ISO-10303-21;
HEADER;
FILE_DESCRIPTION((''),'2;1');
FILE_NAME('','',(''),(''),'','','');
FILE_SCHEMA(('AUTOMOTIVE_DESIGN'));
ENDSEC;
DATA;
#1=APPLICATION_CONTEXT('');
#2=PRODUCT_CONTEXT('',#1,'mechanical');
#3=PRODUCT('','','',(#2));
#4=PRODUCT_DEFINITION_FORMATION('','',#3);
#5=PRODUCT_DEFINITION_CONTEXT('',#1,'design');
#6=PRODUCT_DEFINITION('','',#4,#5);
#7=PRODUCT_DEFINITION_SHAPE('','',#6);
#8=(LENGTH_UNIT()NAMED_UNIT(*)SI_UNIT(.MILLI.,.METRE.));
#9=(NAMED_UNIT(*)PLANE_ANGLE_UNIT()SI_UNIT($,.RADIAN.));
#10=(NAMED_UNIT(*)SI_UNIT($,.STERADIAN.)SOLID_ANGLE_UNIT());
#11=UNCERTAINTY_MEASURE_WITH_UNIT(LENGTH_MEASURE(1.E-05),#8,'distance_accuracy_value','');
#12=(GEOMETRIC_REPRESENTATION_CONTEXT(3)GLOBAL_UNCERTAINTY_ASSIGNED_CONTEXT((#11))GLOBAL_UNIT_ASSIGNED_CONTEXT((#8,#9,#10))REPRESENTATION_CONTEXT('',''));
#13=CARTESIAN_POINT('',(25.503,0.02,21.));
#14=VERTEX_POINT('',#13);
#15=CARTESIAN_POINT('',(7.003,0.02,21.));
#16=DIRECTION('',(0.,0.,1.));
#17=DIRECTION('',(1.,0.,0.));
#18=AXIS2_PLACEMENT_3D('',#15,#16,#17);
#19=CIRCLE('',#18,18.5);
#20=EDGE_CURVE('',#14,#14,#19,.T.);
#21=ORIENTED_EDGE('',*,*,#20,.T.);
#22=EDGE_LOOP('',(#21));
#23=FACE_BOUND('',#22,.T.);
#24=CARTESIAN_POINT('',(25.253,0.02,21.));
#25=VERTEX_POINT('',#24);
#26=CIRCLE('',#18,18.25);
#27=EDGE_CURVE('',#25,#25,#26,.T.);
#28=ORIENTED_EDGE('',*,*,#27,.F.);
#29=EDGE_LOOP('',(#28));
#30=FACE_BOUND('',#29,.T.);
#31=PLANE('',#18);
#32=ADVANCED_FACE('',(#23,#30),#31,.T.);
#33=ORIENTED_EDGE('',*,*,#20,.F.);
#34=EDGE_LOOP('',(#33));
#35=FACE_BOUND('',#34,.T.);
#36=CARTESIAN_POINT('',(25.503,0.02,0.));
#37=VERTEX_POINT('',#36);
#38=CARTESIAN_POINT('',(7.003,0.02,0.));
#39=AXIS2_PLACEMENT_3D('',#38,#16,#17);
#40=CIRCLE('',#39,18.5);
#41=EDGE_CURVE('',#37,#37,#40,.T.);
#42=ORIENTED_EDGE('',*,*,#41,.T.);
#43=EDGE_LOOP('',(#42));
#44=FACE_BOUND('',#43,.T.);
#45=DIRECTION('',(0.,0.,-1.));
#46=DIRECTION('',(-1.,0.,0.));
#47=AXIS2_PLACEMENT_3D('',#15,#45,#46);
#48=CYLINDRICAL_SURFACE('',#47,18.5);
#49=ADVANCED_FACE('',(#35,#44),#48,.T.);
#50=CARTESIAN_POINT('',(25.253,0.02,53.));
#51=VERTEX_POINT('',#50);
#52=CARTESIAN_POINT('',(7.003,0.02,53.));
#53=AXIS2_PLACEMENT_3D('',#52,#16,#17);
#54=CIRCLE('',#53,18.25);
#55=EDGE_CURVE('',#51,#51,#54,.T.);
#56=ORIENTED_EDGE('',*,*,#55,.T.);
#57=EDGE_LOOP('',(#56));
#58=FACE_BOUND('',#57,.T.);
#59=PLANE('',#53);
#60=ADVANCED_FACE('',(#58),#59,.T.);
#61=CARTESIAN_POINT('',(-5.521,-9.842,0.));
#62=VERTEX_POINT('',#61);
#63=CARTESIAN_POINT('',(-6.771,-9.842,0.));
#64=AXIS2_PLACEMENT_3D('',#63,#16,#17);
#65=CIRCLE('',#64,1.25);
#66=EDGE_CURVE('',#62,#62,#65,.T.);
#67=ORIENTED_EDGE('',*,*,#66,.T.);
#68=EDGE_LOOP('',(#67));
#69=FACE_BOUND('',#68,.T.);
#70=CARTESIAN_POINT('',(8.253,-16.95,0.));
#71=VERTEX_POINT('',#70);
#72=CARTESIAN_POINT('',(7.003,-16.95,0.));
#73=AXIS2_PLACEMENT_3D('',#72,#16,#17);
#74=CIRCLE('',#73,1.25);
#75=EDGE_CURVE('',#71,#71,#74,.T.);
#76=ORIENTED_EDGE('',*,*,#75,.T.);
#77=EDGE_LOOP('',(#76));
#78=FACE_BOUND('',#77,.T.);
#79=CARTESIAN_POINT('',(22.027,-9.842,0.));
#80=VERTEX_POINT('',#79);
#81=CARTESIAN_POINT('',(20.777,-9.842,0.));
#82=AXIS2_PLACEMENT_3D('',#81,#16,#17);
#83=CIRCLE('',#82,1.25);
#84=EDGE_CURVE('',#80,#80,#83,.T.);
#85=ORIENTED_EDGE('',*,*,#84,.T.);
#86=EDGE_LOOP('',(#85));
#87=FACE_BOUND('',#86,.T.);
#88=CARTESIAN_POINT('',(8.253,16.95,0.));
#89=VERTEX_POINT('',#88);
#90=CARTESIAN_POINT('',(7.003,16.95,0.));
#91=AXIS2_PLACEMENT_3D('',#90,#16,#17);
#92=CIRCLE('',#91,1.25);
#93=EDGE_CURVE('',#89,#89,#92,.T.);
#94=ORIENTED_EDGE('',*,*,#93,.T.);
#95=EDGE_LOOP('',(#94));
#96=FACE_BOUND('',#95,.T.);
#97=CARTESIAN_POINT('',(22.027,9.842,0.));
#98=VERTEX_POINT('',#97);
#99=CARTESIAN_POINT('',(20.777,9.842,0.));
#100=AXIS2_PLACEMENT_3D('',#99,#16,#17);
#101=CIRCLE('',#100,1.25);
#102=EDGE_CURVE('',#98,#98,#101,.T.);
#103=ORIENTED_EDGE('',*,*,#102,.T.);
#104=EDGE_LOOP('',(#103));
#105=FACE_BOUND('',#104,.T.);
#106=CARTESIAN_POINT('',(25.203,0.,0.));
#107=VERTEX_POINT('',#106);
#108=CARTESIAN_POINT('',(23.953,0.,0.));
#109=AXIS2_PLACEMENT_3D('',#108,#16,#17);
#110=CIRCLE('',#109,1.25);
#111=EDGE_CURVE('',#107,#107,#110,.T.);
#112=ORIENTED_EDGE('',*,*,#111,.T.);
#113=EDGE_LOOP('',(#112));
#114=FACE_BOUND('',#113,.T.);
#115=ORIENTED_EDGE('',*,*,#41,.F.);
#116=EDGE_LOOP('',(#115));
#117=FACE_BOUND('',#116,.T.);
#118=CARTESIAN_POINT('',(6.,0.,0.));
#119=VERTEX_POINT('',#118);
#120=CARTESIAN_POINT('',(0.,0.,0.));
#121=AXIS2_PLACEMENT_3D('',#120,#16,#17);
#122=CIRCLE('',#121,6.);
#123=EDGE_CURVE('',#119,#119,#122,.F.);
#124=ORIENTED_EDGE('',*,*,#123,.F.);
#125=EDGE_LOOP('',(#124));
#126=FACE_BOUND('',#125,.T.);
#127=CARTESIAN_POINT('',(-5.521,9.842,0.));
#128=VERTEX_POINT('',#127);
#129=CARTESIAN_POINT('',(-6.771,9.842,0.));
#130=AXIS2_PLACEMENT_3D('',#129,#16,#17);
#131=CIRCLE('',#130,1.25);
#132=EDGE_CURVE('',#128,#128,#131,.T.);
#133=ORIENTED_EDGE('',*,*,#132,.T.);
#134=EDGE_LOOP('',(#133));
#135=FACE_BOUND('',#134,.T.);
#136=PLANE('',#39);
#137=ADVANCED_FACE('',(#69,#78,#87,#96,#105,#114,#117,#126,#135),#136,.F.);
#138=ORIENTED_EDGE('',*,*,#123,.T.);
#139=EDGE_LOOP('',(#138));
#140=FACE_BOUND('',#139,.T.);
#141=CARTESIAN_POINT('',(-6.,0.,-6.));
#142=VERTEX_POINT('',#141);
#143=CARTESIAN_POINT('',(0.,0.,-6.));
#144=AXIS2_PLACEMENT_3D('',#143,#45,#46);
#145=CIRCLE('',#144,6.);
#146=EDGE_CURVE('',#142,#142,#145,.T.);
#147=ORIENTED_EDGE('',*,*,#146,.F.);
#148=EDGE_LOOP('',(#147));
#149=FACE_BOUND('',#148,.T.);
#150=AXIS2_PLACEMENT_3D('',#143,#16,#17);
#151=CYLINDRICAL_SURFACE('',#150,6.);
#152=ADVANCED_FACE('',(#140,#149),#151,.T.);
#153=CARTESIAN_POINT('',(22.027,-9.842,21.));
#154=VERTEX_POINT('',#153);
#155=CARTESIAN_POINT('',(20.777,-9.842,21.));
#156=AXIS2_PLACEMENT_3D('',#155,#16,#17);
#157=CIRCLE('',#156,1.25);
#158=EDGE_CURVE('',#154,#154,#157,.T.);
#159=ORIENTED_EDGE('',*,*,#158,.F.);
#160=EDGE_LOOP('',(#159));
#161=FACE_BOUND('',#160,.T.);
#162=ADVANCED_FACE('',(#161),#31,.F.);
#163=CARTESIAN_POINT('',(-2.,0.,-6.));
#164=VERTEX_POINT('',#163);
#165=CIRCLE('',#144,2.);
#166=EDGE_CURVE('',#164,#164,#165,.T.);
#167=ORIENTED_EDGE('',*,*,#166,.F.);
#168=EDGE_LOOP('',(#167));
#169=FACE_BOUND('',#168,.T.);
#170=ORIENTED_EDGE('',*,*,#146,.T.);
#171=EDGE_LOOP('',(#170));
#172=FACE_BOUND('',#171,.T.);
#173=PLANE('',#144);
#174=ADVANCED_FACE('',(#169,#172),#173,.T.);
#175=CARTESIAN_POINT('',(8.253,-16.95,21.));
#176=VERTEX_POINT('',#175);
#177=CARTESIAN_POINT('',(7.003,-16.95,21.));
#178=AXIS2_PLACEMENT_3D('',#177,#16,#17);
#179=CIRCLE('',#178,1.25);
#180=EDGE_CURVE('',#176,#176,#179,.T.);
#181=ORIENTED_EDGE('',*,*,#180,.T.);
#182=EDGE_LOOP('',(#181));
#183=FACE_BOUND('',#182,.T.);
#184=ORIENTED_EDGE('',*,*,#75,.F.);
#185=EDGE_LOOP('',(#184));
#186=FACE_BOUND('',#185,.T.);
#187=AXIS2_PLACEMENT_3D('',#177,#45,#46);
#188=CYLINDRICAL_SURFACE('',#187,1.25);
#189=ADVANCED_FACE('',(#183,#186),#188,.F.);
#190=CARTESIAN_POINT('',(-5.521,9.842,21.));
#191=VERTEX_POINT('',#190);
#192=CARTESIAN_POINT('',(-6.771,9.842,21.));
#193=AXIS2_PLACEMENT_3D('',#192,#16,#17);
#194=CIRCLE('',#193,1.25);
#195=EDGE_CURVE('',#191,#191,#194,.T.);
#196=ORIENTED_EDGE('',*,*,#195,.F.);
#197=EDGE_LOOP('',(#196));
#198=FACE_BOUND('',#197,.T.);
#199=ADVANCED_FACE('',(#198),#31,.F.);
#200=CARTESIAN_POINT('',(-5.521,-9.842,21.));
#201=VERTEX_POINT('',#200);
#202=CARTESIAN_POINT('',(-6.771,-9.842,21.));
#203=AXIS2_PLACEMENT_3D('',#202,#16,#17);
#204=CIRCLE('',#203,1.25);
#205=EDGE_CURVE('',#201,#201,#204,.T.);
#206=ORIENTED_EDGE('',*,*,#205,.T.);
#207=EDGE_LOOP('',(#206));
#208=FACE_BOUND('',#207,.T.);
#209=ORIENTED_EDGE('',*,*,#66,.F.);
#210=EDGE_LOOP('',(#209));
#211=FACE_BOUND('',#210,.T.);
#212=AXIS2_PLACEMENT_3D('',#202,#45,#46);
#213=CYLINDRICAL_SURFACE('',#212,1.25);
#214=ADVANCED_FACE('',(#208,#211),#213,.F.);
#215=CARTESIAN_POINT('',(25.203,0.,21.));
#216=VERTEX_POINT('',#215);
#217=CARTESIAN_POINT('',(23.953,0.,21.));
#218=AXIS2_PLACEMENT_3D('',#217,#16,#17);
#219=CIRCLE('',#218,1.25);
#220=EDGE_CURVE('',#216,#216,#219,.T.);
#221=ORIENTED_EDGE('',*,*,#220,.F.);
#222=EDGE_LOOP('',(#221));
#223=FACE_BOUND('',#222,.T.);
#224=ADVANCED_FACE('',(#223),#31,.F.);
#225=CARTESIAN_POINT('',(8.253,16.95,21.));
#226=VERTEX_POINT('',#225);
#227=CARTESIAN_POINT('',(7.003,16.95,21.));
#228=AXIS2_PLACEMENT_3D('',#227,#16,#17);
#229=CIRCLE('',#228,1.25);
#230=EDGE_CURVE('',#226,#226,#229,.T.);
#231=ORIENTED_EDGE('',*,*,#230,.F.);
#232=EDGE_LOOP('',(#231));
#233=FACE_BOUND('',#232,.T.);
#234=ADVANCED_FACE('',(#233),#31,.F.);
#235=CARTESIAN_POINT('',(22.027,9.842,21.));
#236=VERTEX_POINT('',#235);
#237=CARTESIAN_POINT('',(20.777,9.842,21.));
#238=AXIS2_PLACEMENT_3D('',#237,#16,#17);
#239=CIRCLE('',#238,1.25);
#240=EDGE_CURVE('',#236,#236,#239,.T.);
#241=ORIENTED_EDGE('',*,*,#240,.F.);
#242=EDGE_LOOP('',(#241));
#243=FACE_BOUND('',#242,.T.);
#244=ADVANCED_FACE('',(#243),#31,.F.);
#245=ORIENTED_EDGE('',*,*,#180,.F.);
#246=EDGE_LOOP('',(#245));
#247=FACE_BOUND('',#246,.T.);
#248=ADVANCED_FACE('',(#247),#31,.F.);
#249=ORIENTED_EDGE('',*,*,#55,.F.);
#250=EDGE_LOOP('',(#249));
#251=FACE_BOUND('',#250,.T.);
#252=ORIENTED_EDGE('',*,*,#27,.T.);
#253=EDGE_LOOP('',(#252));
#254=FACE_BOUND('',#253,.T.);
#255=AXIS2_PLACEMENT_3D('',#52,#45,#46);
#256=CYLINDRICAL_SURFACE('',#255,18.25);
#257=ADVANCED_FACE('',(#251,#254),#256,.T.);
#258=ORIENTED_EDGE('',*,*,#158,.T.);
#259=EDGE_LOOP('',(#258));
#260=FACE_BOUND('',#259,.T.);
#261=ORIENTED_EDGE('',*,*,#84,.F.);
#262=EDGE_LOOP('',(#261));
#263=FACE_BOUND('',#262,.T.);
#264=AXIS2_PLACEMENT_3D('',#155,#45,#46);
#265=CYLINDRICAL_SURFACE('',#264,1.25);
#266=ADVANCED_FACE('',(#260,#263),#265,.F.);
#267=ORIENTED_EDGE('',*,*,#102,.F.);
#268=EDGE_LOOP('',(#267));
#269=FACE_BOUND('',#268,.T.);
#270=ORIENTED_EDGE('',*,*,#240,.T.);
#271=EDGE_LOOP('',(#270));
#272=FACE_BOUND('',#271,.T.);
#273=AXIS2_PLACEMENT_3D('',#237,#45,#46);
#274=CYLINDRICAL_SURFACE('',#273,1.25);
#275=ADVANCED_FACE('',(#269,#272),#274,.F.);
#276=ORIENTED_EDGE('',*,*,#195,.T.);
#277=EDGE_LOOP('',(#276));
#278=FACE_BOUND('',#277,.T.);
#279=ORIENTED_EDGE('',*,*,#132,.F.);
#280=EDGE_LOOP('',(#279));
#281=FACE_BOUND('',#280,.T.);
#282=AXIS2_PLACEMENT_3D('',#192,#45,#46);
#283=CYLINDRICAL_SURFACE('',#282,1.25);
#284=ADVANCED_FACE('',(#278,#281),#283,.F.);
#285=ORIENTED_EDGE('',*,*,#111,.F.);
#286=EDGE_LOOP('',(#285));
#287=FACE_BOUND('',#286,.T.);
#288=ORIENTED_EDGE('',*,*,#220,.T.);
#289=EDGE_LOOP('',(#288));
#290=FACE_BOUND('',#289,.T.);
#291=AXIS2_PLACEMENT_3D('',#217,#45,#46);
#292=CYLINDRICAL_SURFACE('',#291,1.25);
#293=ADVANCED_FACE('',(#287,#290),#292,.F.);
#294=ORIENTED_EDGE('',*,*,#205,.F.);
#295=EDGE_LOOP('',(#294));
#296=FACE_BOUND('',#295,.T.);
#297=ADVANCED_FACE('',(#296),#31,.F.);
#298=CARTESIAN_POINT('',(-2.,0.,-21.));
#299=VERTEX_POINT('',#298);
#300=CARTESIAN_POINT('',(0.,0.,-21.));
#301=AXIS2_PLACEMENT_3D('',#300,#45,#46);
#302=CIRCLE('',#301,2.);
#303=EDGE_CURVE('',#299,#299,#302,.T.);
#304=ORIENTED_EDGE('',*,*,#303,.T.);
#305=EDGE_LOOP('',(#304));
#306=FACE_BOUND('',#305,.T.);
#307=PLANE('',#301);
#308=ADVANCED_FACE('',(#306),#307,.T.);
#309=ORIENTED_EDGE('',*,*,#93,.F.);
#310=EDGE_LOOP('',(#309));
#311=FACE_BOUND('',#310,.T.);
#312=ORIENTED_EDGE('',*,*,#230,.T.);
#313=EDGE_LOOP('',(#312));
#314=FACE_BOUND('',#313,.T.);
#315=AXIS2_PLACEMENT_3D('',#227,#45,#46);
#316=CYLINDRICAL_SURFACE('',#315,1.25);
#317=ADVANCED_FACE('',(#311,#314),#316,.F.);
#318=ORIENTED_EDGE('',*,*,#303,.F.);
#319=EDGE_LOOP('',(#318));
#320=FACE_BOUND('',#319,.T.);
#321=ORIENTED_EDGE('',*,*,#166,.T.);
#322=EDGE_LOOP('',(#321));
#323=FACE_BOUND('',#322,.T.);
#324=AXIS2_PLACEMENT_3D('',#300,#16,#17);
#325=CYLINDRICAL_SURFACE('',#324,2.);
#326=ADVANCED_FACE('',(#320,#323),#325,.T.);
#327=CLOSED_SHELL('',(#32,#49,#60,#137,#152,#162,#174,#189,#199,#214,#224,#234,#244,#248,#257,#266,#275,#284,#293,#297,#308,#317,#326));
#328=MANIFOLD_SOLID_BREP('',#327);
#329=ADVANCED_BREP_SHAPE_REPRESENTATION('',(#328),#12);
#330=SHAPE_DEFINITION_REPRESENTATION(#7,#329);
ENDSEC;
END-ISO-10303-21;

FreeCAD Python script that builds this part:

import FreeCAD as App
import Part
import Sketcher

V = App.Vector

doc = App.newDocument("Part")
body = doc.addObject("PartDesign::Body", "Body")

sketch1 = body.newObject("Sketcher::SketchObject", "Sketch")
sketch1.AttachmentSupport = (doc.getObject("XY_Plane"), [""])
sketch1.MapMode = "FlatFace"
sketch1.addGeometry(Part.Circle(V(7, 0, 0), V(0, 0, 1), 18.5), False)
sketch1.addGeometry(Part.Circle(V(-6.8, -9.8, 0), V(0, 0, 1), 1.2), False)
sketch1.addGeometry(Part.Circle(V(7, -16.9, 0), V(0, 0, 1), 1.2), False)
sketch1.addGeometry(Part.Circle(V(0, 0, 0), V(0, 0, 1), 6), False)
sketch1.addGeometry(Part.Circle(V(20.8, -9.8, 0), V(0, 0, 1), 1.2), False)
sketch1.addGeometry(Part.Circle(V(24, 0, 0), V(0, 0, 1), 1.2), False)
sketch1.addGeometry(Part.Circle(V(-6.8, 9.8, 0), V(0, 0, 1), 1.2), False)
sketch1.addGeometry(Part.Circle(V(7, 16.9, 0), V(0, 0, 1), 1.2), False)
sketch1.addGeometry(Part.Circle(V(20.8, 9.8, 0), V(0, 0, 1), 1.2), False)
sketch1.addConstraint(Sketcher.Constraint("Coincident", 3, 3, -1, 1))
sketch1.addConstraint(Sketcher.Constraint("Equal", 1, 2))
sketch1.addConstraint(Sketcher.Constraint("Equal", 2, 4))
sketch1.addConstraint(Sketcher.Constraint("Equal", 4, 5))
sketch1.addConstraint(Sketcher.Constraint("Equal", 5, 6))
sketch1.addConstraint(Sketcher.Constraint("Equal", 6, 7))
sketch1.addConstraint(Sketcher.Constraint("Equal", 7, 8))
sketch1.addConstraint(Sketcher.Constraint("Symmetric", 1, 3, 6, 3, -1))
sketch1.addConstraint(Sketcher.Constraint("Symmetric", 2, 3, 7, 3, -1))
sketch1.addConstraint(Sketcher.Constraint("Symmetric", 4, 3, 8, 3, -1))
sketch1.addConstraint(Sketcher.Constraint("PointOnObject", 5, 3, -1))
sketch1.addConstraint(Sketcher.Constraint("Horizontal", 1, 3, 4, 3))
sketch1.addConstraint(Sketcher.Constraint("Vertical", 0, 3, 2, 3))
sketch1.addConstraint(Sketcher.Constraint("Diameter", 0, 37.0))
sketch1.addConstraint(Sketcher.Constraint("Diameter", 3, 12.0))
sketch1.addConstraint(Sketcher.Constraint("Diameter", 1, 2.5))
sketch1.addConstraint(Sketcher.Constraint("DistanceY", -1, 1, 0, 3, 0.02))
sketch1.addConstraint(Sketcher.Constraint("DistanceY", 2, 3, -1, 1, 16.95))
sketch1.addConstraint(Sketcher.Constraint("DistanceX", 0, 3, 5, 3, 16.95))
sketch1.addConstraint(Sketcher.Constraint("DistanceX", -1, 1, 0, 3, 7.003))
sketch1.addConstraint(Sketcher.Constraint("DistanceX", 1, 3, -1, 1, 6.771))
sketch1.addConstraint(Sketcher.Constraint("DistanceY", 1, 3, -1, 1, 9.842))
sketch1.addConstraint(Sketcher.Constraint("DistanceX", -1, 1, 4, 3, 20.777))
pad1 = body.newObject("PartDesign::Pad", "Pad")
pad1.Profile = sketch1
pad1.Length = 21

sketch2 = body.newObject("Sketcher::SketchObject", "Sketch001")
sketch2.AttachmentSupport = (doc.getObject("XY_Plane"), [""])
sketch2.MapMode = "FlatFace"
sketch2.AttachmentOffset = App.Placement(V(0, 0, 21), App.Rotation())
sketch2.addGeometry(Part.Circle(V(7, 0, 0), V(0, 0, 1), 18), False)
sketch2.addConstraint(Sketcher.Constraint("Diameter", 0, 36.5))
sketch2.addConstraint(Sketcher.Constraint("DistanceY", -1, 1, 0, 3, 0.02))
sketch2.addConstraint(Sketcher.Constraint("DistanceX", -1, 1, 0, 3, 7.003))
pad2 = body.newObject("PartDesign::Pad", "Pad001")
pad2.Profile = sketch2
pad2.Length = 32

sketch3 = body.newObject("Sketcher::SketchObject", "Sketch002")
sketch3.AttachmentSupport = (doc.getObject("XY_Plane"), [""])
sketch3.MapMode = "FlatFace"
sketch3.AttachmentOffset = App.Placement(V(0, 0, 21), App.Rotation())
sketch3.addGeometry(Part.Circle(V(0, 0, 0), V(0, 0, 1), 6), False)
sketch3.addConstraint(Sketcher.Constraint("Coincident", 0, 3, -1, 1))
sketch3.addConstraint(Sketcher.Constraint("Diameter", 0, 12.0))
pad3 = body.newObject("PartDesign::Pad", "Pad002")
pad3.Profile = sketch3
pad3.Length = 27
pad3.Reversed = True

sketch4 = body.newObject("Sketcher::SketchObject", "Sketch003")
sketch4.AttachmentSupport = (doc.getObject("XY_Plane"), [""])
sketch4.MapMode = "FlatFace"
sketch4.AttachmentOffset = App.Placement(V(0, 0, -6), App.Rotation())
sketch4.addGeometry(Part.Circle(V(0, 0, 0), V(0, 0, 1), 2), False)
sketch4.addConstraint(Sketcher.Constraint("Coincident", 0, 3, -1, 1))
sketch4.addConstraint(Sketcher.Constraint("Diameter", 0, 4.0))
pad4 = body.newObject("PartDesign::Pad", "Pad003")
pad4.Profile = sketch4
pad4.Length = 15
pad4.Reversed = True

doc.recompute()
